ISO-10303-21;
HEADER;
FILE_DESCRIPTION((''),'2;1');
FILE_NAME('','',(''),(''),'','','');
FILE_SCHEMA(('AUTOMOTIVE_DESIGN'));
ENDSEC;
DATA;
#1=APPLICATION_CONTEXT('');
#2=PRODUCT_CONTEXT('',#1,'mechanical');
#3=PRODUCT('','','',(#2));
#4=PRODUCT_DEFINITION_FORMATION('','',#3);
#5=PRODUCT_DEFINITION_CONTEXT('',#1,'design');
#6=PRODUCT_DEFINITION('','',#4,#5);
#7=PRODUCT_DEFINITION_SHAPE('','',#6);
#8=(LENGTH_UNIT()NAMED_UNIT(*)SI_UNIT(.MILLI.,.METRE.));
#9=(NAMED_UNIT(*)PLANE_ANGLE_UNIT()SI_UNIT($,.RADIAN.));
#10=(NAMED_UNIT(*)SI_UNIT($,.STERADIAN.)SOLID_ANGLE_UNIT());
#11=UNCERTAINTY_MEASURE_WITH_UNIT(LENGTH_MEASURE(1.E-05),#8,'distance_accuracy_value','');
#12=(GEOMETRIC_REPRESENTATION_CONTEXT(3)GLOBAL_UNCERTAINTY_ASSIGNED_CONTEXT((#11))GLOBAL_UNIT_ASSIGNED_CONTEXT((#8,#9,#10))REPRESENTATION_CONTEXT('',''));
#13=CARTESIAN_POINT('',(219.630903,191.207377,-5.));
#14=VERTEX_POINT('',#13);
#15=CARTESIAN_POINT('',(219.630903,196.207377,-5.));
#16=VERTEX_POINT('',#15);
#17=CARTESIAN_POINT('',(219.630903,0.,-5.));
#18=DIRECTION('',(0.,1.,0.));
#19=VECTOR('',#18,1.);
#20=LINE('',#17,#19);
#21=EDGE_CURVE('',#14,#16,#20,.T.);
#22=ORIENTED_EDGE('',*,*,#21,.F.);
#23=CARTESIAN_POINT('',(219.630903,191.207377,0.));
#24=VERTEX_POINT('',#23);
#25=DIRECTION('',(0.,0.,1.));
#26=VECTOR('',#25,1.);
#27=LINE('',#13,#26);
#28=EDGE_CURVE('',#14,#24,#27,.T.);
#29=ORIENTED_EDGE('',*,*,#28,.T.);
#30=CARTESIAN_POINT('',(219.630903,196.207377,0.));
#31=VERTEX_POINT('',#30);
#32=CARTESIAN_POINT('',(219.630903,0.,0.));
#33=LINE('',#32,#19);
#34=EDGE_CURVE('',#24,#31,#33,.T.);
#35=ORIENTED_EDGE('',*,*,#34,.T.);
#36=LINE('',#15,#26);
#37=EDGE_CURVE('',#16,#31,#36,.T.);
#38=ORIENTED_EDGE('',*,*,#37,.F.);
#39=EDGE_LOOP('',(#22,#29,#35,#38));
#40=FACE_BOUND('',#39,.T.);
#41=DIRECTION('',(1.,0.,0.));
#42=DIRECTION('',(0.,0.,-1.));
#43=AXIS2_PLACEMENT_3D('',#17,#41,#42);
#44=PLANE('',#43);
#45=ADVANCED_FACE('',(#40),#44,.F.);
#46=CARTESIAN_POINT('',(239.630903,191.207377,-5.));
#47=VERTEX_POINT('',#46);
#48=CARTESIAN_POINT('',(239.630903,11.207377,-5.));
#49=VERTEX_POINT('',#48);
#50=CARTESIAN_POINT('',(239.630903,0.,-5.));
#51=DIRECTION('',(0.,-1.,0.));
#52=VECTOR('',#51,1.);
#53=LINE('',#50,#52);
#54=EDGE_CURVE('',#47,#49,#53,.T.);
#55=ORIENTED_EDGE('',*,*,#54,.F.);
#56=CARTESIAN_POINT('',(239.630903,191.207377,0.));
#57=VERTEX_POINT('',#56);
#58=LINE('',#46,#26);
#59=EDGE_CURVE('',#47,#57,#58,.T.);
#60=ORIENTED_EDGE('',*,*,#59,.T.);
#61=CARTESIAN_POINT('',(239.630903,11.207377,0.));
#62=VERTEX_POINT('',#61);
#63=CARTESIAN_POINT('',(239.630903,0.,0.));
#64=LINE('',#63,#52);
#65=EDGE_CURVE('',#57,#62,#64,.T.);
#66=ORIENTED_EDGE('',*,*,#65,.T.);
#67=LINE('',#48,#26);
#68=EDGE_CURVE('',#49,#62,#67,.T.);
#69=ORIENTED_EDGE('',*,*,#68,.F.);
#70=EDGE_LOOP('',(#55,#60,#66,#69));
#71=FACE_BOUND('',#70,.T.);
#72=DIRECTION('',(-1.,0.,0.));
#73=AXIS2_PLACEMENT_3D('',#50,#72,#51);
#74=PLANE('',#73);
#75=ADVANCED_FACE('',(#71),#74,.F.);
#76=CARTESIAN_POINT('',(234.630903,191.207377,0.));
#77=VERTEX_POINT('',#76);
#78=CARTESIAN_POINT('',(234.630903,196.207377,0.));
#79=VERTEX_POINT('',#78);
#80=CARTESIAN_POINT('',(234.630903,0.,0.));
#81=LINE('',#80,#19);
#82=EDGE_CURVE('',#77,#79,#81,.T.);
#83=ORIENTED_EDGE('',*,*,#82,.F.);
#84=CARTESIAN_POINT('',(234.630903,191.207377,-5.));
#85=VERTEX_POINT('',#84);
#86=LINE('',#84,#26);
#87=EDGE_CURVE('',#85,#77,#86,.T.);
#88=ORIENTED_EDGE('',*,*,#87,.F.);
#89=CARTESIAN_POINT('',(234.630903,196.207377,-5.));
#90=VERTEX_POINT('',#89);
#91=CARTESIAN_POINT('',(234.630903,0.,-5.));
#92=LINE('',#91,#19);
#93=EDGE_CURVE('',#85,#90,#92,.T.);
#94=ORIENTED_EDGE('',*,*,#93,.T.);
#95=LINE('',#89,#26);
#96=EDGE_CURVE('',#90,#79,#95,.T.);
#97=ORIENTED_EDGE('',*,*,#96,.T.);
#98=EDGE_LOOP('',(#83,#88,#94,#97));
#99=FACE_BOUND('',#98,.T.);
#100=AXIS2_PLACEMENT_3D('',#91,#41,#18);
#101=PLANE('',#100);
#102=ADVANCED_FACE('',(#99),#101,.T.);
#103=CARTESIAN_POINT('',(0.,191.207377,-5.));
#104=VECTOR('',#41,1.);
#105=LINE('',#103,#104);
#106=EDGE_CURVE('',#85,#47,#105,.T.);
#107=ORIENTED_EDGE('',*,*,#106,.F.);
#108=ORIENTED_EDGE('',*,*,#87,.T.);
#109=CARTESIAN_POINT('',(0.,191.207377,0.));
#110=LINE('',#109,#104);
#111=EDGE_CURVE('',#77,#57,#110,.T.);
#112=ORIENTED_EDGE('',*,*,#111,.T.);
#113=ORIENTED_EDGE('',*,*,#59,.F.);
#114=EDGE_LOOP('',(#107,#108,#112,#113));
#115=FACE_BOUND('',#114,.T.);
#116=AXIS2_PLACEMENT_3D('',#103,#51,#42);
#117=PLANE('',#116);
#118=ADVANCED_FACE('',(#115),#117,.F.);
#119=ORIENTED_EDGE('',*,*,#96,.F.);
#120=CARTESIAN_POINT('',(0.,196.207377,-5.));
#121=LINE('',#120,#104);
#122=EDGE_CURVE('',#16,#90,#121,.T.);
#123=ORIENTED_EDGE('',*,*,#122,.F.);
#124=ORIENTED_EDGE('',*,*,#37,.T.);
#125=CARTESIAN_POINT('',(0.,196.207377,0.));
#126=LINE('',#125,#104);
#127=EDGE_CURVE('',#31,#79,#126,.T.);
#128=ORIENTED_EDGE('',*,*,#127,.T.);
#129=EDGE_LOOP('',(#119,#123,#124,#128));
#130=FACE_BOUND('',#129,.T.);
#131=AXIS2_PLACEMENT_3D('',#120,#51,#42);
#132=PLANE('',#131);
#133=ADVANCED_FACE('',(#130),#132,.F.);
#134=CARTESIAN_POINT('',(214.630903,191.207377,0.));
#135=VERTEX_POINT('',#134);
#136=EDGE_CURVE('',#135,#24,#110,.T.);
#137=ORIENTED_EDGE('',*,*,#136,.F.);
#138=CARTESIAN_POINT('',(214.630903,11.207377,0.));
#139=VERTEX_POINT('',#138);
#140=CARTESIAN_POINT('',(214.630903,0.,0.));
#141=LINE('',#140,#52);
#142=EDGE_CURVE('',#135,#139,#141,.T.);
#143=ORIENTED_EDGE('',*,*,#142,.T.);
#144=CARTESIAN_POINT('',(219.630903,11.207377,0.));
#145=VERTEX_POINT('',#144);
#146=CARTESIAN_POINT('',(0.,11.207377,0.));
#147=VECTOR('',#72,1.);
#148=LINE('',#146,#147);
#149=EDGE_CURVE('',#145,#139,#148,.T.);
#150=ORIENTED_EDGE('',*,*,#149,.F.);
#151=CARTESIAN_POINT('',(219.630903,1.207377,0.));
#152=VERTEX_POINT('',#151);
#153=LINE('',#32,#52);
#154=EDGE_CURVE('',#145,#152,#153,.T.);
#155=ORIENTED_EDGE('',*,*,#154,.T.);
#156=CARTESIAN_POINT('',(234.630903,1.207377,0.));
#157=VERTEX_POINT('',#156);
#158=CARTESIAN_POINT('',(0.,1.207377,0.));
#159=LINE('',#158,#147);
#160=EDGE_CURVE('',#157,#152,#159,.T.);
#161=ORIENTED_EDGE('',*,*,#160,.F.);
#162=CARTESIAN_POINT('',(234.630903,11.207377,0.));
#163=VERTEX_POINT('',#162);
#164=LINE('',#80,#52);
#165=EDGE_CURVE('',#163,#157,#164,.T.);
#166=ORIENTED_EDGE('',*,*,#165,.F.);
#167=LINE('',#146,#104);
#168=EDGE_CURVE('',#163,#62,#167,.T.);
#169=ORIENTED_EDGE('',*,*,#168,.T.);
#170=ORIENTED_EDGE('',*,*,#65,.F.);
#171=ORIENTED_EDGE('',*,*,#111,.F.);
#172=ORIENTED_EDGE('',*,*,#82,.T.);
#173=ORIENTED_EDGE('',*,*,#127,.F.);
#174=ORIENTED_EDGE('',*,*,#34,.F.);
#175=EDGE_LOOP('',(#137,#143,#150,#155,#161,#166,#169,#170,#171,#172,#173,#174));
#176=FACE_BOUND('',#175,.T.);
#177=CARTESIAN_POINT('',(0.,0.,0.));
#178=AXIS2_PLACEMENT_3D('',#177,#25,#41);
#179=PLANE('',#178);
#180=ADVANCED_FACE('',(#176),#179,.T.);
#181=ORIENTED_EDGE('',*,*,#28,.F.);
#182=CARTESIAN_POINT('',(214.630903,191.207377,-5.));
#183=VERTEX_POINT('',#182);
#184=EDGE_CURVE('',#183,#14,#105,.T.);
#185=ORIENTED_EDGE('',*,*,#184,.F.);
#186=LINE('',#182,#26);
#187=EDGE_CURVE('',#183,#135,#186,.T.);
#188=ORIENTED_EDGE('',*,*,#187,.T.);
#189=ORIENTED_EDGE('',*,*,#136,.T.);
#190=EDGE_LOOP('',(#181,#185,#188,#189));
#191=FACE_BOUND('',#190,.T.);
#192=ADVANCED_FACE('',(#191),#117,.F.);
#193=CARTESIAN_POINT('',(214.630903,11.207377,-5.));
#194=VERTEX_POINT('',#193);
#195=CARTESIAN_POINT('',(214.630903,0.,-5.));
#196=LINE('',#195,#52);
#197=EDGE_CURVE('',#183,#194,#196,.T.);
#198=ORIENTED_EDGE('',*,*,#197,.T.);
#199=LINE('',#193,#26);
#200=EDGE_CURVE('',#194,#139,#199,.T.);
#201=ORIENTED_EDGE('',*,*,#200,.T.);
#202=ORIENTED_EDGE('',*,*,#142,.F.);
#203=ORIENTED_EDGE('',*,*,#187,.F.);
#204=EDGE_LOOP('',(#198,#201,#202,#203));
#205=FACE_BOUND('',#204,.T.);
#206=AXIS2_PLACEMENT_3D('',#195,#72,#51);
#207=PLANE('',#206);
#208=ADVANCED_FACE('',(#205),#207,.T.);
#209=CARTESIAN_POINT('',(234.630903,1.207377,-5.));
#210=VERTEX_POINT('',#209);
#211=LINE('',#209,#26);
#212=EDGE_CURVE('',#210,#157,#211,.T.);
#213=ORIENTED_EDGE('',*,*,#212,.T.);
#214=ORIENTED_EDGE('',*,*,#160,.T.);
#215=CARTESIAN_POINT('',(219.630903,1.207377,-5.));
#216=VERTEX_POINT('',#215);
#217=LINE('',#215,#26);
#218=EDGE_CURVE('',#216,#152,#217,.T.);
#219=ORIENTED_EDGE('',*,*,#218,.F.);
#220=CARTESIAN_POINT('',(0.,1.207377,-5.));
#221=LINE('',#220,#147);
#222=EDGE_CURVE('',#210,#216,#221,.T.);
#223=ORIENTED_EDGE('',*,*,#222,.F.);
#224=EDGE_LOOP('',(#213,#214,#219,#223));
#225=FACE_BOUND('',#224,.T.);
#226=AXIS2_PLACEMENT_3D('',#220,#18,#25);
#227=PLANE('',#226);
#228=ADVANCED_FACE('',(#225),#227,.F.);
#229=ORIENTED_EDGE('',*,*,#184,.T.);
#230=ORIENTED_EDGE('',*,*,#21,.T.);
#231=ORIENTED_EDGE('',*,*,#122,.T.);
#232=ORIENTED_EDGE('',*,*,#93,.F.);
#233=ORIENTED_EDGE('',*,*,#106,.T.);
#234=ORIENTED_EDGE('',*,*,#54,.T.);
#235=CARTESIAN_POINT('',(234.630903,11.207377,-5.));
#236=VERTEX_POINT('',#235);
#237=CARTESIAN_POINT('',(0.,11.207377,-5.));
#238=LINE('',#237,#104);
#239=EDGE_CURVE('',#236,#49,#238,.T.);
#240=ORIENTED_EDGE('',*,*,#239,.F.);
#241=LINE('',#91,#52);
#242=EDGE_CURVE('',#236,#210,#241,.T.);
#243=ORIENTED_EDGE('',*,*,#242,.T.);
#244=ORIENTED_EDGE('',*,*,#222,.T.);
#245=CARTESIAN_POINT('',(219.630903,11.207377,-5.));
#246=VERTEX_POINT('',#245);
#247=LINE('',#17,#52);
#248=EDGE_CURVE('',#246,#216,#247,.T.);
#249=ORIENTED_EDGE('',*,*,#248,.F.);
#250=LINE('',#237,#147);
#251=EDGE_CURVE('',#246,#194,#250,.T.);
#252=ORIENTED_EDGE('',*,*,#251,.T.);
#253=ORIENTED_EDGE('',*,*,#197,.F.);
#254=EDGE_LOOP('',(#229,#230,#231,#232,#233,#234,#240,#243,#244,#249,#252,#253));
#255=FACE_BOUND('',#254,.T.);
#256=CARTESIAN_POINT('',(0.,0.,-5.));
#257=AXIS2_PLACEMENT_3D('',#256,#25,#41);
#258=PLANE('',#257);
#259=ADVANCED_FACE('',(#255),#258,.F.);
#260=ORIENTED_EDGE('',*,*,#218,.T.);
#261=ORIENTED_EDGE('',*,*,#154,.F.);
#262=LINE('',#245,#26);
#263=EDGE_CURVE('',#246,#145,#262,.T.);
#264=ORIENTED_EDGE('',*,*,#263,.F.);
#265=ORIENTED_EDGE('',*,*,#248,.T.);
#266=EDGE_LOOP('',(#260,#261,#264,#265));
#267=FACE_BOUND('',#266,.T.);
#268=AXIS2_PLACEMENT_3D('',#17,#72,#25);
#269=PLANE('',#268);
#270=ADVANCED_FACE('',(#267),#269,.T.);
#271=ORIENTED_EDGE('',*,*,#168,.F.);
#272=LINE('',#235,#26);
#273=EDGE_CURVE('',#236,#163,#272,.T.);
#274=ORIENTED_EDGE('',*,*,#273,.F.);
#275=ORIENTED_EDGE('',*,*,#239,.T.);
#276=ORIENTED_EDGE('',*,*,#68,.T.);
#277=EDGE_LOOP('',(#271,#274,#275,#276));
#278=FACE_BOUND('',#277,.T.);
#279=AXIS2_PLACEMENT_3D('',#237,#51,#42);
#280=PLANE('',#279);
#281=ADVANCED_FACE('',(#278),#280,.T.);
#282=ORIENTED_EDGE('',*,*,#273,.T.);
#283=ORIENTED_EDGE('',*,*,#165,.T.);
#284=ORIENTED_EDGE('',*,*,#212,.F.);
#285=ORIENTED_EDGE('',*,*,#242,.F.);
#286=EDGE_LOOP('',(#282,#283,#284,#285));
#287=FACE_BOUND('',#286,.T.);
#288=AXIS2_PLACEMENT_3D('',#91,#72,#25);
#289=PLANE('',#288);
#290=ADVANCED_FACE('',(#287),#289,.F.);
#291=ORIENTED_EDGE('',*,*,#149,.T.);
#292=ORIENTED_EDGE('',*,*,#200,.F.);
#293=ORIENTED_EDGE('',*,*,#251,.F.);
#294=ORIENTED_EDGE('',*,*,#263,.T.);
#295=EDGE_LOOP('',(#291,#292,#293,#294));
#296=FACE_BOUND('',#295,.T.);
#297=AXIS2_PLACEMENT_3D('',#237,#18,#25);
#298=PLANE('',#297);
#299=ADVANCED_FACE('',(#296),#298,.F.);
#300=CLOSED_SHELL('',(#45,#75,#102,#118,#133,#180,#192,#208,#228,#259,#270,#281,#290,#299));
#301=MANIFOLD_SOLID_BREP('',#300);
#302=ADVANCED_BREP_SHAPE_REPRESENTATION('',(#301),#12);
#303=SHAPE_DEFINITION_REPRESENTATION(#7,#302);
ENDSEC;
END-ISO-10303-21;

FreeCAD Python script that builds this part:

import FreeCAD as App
import Part
import Sketcher

V = App.Vector

doc = App.newDocument("Part")
body = doc.addObject("PartDesign::Body", "Body")

sketch1 = doc.addObject("Sketcher::SketchObject", "Sketch")
body.addObject(sketch1)
sketch1.AttachmentSupport = (doc.XY_Plane, [""])
sketch1.MapMode = "FlatFace"
sketch1.addGeometry(Part.LineSegment(V(214.630903, 191.207377, 0), V(214.630903, 11.207377, 0)), False)
sketch1.addGeometry(Part.LineSegment(V(214.630903, 11.207377, 0), V(219.630903, 11.207377, 0)), False)
sketch1.addGeometry(Part.LineSegment(V(219.630903, 11.207377, 0), V(219.630903, 1.207377, 0)), False)
sketch1.addGeometry(Part.LineSegment(V(219.630903, 1.207377, 0), V(234.630903, 1.207377, 0)), False)
sketch1.addGeometry(Part.LineSegment(V(234.630903, 1.207377, 0), V(234.630903, 11.207377, 0)), False)
sketch1.addGeometry(Part.LineSegment(V(234.630903, 11.207377, 0), V(239.630903, 11.207377, 0)), False)
sketch1.addGeometry(Part.LineSegment(V(239.630903, 11.207377, 0), V(239.630903, 191.207377, 0)), False)
sketch1.addGeometry(Part.LineSegment(V(239.630903, 191.207377, 0), V(234.630903, 191.207377, 0)), False)
sketch1.addGeometry(Part.LineSegment(V(234.630903, 191.207377, 0), V(234.630903, 196.207377, 0)), False)
sketch1.addGeometry(Part.LineSegment(V(234.630903, 196.207377, 0), V(219.630903, 196.207377, 0)), False)
sketch1.addGeometry(Part.LineSegment(V(219.630903, 196.207377, 0), V(219.630903, 191.207377, 0)), False)
sketch1.addGeometry(Part.LineSegment(V(219.630903, 191.207377, 0), V(214.630903, 191.207377, 0)), False)
sketch1.addConstraint(Sketcher.Constraint("Coincident", 0, 2, 1, 1))
sketch1.addConstraint(Sketcher.Constraint("Coincident", 1, 2, 2, 1))
sketch1.addConstraint(Sketcher.Constraint("Coincident", 2, 2, 3, 1))
sketch1.addConstraint(Sketcher.Constraint("Coincident", 3, 2, 4, 1))
sketch1.addConstraint(Sketcher.Constraint("Coincident", 4, 2, 5, 1))
sketch1.addConstraint(Sketcher.Constraint("Coincident", 5, 2, 6, 1))
sketch1.addConstraint(Sketcher.Constraint("Coincident", 6, 2, 7, 1))
sketch1.addConstraint(Sketcher.Constraint("Coincident", 7, 2, 8, 1))
sketch1.addConstraint(Sketcher.Constraint("Coincident", 8, 2, 9, 1))
sketch1.addConstraint(Sketcher.Constraint("Coincident", 9, 2, 10, 1))
sketch1.addConstraint(Sketcher.Constraint("Coincident", 10, 2, 11, 1))
sketch1.addConstraint(Sketcher.Constraint("Coincident", 11, 2, 0, 1))
sketch1.addConstraint(Sketcher.Constraint("Vertical", 0))
sketch1.addConstraint(Sketcher.Constraint("Horizontal", 1))
sketch1.addConstraint(Sketcher.Constraint("Vertical", 2))
sketch1.addConstraint(Sketcher.Constraint("Horizontal", 3))
sketch1.addConstraint(Sketcher.Constraint("Vertical", 4))
sketch1.addConstraint(Sketcher.Constraint("Horizontal", 5))
sketch1.addConstraint(Sketcher.Constraint("Vertical", 6))
sketch1.addConstraint(Sketcher.Constraint("Horizontal", 7))
sketch1.addConstraint(Sketcher.Constraint("Vertical", 8))
sketch1.addConstraint(Sketcher.Constraint("Horizontal", 9))
sketch1.addConstraint(Sketcher.Constraint("Vertical", 10))
sketch1.addConstraint(Sketcher.Constraint("Horizontal", 11))
sketch1.addConstraint(Sketcher.Constraint("Horizontal", 1, 2, 4, 2))
sketch1.addConstraint(Sketcher.Constraint("Horizontal", 7, 2, 10, 2))
sketch1.addConstraint(Sketcher.Constraint("Vertical", 4, 2, 7, 2))
sketch1.addConstraint(Sketcher.Constraint("Vertical", 2, 2, 9, 2))
sketch1.addConstraint(Sketcher.Constraint("Equal", 1, 5))
sketch1.addConstraint(Sketcher.Constraint("Equal", 11, 8))
sketch1.addConstraint(Sketcher.Constraint("DistanceX", 1, 1, 1, 2, 5.0))
sketch1.addConstraint(Sketcher.Constraint("DistanceX", 3, 1, 3, 2, 15.0))
sketch1.addConstraint(Sketcher.Constraint("DistanceY", 0, 2, 0, 1, 180.0))
sketch1.addConstraint(Sketcher.Constraint("DistanceY", 2, 2, 2, 1, 10.0))
sketch1.addConstraint(Sketcher.Constraint("DistanceX", -1, 1, 0, 2, 214.630903))
sketch1.addConstraint(Sketcher.Constraint("DistanceY", -1, 1, 0, 2, 11.207377))
pad1 = doc.addObject("PartDesign::Pad", "Pad")
body.addObject(pad1)
pad1.Profile = sketch1
pad1.Length = 5
pad1.Reversed = True

doc.recompute()
